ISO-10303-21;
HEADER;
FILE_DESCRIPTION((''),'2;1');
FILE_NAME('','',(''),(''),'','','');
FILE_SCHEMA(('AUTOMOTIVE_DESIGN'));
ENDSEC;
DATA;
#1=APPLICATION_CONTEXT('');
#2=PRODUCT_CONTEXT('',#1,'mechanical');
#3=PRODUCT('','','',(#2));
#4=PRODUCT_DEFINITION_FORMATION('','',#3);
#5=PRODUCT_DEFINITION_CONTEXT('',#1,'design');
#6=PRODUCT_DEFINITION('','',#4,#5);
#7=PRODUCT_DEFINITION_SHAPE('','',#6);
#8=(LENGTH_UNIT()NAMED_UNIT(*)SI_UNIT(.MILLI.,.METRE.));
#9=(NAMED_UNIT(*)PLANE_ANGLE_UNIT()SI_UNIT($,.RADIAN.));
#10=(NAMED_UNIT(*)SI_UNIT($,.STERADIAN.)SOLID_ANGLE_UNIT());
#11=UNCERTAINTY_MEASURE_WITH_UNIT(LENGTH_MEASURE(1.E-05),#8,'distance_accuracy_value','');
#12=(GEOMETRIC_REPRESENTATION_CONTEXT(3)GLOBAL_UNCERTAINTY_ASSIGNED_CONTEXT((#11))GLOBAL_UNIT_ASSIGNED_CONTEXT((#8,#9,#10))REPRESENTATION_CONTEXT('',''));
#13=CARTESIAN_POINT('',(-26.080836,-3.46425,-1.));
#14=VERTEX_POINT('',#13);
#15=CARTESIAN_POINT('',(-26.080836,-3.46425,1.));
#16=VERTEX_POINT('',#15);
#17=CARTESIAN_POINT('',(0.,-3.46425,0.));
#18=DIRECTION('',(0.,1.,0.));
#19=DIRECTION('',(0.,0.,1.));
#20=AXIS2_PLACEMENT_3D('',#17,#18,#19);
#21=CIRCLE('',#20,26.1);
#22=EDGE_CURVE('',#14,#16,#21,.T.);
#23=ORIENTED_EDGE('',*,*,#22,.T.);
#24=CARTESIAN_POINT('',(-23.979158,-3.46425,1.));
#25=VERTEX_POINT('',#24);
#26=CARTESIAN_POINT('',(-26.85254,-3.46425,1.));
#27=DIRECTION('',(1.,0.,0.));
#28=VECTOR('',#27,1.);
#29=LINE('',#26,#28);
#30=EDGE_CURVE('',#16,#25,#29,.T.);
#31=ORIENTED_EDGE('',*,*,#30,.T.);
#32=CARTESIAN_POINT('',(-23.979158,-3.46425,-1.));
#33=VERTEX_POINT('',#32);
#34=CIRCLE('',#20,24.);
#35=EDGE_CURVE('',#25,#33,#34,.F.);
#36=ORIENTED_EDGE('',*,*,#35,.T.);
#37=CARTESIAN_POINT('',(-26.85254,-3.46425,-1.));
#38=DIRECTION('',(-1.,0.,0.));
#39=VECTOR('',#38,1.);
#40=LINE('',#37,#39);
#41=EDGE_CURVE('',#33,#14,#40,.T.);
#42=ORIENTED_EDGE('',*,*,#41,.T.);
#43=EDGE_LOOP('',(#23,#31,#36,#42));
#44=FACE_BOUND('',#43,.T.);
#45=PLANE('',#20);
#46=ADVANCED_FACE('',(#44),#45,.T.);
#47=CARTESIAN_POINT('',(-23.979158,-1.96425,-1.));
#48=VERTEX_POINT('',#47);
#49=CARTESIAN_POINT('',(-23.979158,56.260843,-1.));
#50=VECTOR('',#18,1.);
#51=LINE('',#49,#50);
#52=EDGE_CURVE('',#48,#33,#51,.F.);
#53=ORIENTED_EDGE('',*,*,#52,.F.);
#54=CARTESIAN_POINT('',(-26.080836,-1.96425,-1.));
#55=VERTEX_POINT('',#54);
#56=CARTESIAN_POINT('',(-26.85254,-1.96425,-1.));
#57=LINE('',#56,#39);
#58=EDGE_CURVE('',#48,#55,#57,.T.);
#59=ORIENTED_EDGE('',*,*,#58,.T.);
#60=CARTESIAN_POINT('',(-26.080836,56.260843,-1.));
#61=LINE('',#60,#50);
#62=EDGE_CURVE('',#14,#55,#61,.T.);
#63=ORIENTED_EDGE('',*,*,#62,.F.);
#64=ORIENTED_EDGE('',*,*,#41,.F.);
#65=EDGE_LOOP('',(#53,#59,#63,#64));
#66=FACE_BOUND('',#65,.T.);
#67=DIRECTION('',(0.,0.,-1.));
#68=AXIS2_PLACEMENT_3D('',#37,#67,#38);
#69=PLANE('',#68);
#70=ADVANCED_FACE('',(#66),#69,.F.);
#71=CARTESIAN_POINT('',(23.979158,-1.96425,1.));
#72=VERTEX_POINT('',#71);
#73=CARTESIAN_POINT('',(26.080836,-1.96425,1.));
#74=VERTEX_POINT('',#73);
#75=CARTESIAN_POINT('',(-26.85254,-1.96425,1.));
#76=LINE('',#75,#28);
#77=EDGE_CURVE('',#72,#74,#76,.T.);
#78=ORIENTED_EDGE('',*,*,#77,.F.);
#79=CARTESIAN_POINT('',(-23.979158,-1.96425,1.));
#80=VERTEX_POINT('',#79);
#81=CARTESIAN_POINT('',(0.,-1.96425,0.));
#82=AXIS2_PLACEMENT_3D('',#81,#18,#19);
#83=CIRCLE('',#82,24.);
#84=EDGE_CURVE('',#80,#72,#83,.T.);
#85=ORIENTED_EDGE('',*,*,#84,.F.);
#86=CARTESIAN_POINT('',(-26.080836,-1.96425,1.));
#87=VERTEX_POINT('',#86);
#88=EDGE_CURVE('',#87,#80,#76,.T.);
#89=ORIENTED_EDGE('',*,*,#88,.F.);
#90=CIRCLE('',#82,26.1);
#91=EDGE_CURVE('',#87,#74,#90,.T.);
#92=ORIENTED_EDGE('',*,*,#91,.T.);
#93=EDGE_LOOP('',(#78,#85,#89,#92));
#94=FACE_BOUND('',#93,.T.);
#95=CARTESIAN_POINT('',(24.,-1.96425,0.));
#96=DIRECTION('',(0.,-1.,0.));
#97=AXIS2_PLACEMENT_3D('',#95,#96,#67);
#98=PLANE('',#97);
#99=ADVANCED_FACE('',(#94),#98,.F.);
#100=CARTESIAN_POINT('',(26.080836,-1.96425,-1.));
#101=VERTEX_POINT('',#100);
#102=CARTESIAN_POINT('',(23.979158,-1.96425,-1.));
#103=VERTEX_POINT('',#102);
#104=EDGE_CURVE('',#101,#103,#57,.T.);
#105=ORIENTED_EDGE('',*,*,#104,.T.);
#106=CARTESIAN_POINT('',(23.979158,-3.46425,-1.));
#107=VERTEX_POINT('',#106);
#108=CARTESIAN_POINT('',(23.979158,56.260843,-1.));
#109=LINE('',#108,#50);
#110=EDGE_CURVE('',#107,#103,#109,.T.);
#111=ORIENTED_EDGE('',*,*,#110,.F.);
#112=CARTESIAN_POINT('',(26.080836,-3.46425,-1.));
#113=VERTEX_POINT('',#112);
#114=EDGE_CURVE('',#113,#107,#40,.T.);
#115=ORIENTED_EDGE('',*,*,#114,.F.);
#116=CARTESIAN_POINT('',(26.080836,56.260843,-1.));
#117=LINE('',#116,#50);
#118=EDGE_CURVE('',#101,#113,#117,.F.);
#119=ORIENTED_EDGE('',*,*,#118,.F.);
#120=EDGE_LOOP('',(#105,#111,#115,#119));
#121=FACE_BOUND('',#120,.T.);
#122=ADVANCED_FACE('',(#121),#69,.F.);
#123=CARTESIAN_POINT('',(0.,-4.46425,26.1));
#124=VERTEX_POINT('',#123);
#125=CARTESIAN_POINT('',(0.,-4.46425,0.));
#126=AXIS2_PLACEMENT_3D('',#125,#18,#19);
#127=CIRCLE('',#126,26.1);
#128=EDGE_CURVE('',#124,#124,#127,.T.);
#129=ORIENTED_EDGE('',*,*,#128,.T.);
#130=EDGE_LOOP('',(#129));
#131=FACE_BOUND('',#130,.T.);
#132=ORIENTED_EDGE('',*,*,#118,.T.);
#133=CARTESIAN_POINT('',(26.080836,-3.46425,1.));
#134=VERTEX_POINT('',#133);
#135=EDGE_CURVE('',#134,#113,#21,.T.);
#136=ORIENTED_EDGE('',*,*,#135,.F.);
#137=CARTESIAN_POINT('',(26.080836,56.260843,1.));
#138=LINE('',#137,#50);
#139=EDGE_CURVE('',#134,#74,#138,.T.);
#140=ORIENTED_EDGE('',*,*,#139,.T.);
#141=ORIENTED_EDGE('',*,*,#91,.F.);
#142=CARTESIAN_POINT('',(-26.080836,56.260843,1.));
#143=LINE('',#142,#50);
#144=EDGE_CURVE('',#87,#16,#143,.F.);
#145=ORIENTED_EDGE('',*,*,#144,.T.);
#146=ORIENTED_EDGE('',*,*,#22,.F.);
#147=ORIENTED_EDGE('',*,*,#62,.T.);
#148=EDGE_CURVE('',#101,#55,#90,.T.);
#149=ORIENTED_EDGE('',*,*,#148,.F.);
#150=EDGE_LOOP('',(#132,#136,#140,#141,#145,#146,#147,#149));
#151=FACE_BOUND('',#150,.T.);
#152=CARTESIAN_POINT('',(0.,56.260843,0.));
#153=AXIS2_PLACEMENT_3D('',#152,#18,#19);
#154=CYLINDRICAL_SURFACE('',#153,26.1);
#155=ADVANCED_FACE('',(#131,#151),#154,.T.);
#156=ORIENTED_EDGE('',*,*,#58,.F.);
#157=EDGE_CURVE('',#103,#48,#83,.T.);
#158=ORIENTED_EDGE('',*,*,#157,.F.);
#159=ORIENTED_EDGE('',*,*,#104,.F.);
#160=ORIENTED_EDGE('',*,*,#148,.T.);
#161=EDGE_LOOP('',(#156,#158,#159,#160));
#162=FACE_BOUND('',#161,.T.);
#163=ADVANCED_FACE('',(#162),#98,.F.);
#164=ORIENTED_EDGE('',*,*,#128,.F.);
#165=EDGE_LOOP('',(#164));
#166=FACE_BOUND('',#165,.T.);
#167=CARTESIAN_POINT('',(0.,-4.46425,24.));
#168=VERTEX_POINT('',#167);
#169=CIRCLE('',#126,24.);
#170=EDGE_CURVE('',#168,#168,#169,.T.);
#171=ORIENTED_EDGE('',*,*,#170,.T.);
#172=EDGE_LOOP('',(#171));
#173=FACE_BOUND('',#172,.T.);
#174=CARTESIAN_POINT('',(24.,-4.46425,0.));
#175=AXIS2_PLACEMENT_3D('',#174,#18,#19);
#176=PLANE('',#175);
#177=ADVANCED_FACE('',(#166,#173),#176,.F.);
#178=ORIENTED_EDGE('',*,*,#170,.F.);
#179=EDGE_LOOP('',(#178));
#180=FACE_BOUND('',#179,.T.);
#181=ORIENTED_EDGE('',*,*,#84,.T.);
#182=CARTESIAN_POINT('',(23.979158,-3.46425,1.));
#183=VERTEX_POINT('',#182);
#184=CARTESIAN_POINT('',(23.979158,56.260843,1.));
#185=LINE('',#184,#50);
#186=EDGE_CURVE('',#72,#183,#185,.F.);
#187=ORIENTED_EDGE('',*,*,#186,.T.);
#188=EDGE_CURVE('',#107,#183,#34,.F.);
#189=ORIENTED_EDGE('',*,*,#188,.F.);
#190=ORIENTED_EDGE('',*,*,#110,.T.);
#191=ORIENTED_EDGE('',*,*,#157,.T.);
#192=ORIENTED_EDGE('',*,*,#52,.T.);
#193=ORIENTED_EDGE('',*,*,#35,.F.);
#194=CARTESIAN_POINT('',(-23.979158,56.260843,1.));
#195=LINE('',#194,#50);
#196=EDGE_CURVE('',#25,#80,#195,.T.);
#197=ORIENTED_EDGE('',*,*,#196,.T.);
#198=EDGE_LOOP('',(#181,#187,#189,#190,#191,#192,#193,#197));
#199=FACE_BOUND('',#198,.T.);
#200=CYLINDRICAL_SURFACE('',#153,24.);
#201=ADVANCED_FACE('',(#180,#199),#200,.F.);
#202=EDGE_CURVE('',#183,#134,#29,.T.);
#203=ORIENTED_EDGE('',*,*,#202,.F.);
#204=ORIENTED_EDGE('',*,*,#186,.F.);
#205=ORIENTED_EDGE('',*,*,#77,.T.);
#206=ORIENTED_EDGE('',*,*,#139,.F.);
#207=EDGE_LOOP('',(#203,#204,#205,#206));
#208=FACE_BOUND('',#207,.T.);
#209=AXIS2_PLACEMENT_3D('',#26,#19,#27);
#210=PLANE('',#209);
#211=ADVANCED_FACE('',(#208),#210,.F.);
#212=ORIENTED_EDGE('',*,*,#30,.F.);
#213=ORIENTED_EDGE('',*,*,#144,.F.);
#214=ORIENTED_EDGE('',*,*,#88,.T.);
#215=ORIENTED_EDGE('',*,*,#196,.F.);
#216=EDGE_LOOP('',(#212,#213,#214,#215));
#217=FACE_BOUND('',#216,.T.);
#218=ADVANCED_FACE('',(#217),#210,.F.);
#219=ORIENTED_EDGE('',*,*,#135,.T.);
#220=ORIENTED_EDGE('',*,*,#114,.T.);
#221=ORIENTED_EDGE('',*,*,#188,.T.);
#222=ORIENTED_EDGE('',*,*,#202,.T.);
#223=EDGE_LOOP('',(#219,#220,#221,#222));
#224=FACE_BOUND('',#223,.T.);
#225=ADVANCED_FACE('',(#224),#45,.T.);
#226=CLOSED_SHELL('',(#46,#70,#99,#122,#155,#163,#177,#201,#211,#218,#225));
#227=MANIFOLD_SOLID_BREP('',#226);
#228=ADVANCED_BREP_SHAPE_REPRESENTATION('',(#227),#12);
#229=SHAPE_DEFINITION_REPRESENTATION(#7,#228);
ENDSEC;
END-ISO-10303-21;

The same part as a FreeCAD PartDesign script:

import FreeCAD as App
import Part
import Sketcher
Q = App.Units.Quantity


def add_polygon(sketch, points):
    """Adds a closed chain of lines whose ends are joined by coincident constraints."""
    first, n = sketch.GeometryCount, len(points)
    for a, b in zip(points, points[1:] + points[:1]):
        sketch.addGeometry(Part.LineSegment(App.Vector(*a, 0), App.Vector(*b, 0)), False)
    for i in range(n):
        sketch.addConstraint(Sketcher.Constraint("Coincident", first + i, 2, first + (i + 1) % n, 1))

doc = App.newDocument("Part")
body = doc.addObject("PartDesign::Body", "Body")

# Sketch on XY plane
sketch1 = body.newObject("Sketcher::SketchObject", "Sketch")
sketch1.AttachmentSupport = (doc.getObject("XY_Plane"), [""])
sketch1.MapMode = "FlatFace"
add_polygon(sketch1, [(24, -2), (24, -4.5), (26.1, -4.5), (26.1, -2)])  # lines 0-3
sketch1.addConstraint(Sketcher.Constraint("Vertical", 0))
sketch1.addConstraint(Sketcher.Constraint("Horizontal", 1))
sketch1.addConstraint(Sketcher.Constraint("Vertical", 2))
sketch1.addConstraint(Sketcher.Constraint("Horizontal", 3))
sketch1.addConstraint(Sketcher.Constraint("DistanceX", 1, 1, 1, 2, Q("2.1 mm")))
sketch1.addConstraint(Sketcher.Constraint("DistanceY", 0, 2, 0, 1, Q("2.5 mm")))
sketch1.addConstraint(Sketcher.Constraint("DistanceX", -1, 1, 0, 2, Q("24 mm")))
sketch1.addConstraint(Sketcher.Constraint("DistanceY", 0, 2, -1, 1, Q("4.46425 mm")))
revolution = body.newObject("PartDesign::Revolution", "Revolution")
revolution.Profile = sketch1
revolution.ReferenceAxis = (sketch1, ["V_Axis"])
revolution.Angle = 360

# Sketch on XZ plane
sketch2 = body.newObject("Sketcher::SketchObject", "Sketch001")
sketch2.AttachmentSupport = (doc.getObject("XZ_Plane"), [""])
sketch2.MapMode = "FlatFace"
sketch2.AttachmentOffset = App.Placement(App.Vector(0, 0, 1.96425), App.Rotation())
add_polygon(sketch2, [(-26.9, -1), (-26.9, 1), (26.9, 1), (26.9, -1)])  # lines 0-3
sketch2.addConstraint(Sketcher.Constraint("Vertical", 0))
sketch2.addConstraint(Sketcher.Constraint("Horizontal", 1))
sketch2.addConstraint(Sketcher.Constraint("Vertical", 2))
sketch2.addConstraint(Sketcher.Constraint("Horizontal", 3))
sketch2.addConstraint(Sketcher.Constraint("Symmetric", 0, 2, 2, 2, -1, 1))
sketch2.addConstraint(Sketcher.Constraint("DistanceY", 0, 1, 0, 2, Q("2 mm")))
sketch2.addConstraint(Sketcher.Constraint("DistanceX", 1, 1, 1, 2, Q("53.705081 mm")))
pocket1 = body.newObject("PartDesign::Pocket", "Pocket")
pocket1.Profile = sketch2
pocket1.Length = 1.5
pocket1.Reversed = True

doc.recompute()
